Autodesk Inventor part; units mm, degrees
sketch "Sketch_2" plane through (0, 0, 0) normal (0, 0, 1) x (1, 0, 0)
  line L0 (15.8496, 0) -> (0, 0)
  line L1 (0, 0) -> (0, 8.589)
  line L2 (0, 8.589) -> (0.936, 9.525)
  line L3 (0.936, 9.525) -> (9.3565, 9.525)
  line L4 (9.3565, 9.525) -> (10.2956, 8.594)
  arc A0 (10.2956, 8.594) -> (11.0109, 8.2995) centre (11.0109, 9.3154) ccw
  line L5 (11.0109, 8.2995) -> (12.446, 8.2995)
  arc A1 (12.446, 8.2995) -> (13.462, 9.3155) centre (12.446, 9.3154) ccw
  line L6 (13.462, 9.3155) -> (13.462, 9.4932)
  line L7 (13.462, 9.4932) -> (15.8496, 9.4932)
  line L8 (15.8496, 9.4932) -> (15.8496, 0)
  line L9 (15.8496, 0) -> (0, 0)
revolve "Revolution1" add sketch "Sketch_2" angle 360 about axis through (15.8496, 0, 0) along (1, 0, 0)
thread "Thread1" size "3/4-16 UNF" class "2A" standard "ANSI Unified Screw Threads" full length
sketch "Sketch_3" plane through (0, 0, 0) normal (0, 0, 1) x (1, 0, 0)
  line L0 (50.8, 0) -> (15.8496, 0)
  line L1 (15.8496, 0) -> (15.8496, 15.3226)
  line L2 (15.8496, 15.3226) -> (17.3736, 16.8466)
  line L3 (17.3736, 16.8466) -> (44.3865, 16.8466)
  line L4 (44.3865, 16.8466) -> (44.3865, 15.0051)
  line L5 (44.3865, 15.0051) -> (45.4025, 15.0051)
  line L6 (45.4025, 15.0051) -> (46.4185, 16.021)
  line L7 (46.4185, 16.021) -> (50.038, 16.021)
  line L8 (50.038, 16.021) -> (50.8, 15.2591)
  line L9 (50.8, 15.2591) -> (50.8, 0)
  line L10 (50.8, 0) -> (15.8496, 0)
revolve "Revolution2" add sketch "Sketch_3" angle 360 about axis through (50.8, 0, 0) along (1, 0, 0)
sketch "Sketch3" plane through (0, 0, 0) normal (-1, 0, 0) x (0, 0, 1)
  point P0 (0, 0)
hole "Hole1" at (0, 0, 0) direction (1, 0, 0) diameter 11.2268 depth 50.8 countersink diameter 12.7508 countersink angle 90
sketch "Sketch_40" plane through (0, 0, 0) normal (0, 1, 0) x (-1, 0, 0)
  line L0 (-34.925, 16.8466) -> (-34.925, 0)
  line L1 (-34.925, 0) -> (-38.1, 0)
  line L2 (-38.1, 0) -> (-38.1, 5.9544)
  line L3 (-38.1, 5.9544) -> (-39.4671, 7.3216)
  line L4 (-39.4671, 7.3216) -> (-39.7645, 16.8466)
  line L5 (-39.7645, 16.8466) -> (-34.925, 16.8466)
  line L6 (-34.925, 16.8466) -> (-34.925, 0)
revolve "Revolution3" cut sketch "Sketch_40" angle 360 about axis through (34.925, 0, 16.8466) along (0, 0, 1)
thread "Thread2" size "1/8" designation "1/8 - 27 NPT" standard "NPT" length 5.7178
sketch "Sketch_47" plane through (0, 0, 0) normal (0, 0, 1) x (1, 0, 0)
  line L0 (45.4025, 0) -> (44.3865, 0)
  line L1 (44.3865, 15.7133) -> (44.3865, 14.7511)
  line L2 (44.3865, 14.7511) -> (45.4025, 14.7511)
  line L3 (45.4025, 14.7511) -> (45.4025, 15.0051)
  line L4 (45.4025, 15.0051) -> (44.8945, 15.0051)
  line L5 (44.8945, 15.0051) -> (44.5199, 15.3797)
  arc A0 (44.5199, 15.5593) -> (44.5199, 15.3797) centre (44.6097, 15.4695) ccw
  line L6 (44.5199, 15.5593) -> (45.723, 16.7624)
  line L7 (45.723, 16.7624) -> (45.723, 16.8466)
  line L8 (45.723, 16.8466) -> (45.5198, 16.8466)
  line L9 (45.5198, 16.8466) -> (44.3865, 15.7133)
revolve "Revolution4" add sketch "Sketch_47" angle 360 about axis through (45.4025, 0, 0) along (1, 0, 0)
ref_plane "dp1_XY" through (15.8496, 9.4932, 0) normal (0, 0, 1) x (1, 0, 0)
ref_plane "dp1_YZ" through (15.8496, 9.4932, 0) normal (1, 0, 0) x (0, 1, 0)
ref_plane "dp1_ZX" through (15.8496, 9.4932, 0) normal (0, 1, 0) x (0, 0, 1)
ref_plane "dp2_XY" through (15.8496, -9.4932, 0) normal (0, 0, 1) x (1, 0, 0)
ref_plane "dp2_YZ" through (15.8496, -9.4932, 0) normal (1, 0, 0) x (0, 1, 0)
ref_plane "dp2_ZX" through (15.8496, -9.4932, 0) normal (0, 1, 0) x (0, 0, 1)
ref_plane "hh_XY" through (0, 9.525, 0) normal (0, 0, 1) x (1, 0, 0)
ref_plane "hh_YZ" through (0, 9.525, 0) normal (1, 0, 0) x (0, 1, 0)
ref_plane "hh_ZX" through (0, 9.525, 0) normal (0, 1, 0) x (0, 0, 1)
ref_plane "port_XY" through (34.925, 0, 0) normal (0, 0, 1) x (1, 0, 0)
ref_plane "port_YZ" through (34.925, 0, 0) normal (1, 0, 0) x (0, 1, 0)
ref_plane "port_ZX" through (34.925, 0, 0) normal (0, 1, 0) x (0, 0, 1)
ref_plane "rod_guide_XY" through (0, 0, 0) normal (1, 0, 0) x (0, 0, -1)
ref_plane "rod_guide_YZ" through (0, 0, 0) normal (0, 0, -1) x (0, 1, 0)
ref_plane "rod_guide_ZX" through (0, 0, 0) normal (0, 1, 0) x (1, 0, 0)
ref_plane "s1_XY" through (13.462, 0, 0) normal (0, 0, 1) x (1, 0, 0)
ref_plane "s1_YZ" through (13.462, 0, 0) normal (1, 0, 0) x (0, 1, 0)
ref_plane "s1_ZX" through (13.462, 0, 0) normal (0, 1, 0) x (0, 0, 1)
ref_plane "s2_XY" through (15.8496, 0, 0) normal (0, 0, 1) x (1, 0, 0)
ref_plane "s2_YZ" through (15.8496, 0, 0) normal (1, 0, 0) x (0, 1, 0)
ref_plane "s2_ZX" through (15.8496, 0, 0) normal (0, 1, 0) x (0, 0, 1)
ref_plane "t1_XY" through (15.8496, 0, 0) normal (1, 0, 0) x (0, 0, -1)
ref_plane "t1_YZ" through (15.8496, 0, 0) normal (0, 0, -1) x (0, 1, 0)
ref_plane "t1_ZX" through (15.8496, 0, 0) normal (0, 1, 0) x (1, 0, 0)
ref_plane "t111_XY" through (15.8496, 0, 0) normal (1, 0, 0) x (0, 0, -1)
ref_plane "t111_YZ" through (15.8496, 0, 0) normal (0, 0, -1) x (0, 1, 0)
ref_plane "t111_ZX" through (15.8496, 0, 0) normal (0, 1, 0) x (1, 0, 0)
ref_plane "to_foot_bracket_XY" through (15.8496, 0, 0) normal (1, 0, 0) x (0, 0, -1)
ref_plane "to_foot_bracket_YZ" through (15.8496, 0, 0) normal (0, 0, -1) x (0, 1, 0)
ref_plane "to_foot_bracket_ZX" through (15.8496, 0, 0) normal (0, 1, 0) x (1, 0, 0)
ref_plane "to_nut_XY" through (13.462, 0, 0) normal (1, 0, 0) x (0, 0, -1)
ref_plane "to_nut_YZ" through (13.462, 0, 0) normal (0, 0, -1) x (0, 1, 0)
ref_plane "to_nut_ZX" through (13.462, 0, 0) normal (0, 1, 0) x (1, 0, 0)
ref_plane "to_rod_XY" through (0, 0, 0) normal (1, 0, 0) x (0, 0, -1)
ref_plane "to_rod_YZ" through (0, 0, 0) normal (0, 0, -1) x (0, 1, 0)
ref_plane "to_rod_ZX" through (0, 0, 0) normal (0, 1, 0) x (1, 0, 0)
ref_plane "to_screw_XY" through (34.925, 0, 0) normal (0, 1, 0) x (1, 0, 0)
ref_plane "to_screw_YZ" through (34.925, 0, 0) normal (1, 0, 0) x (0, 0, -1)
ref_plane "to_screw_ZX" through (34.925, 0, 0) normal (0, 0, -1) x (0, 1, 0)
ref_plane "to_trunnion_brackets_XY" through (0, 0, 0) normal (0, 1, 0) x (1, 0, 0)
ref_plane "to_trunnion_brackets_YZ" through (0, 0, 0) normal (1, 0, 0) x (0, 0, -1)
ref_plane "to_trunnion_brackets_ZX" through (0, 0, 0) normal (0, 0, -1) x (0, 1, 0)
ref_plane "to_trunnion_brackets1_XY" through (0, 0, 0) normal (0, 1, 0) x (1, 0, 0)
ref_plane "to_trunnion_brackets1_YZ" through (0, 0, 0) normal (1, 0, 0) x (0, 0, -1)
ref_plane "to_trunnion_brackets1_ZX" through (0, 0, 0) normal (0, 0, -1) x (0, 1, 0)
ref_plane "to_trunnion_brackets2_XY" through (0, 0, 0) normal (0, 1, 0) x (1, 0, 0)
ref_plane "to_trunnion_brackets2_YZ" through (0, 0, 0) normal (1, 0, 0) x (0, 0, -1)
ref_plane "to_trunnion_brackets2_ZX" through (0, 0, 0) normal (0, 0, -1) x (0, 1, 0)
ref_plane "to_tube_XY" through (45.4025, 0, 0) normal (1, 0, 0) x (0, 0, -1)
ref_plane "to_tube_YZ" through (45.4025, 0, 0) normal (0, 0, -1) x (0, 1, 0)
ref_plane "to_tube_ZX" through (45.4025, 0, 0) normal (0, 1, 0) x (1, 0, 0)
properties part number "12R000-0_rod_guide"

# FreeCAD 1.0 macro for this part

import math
import FreeCAD as App
import Part
import Sketcher
Q = App.Units.Quantity


def add_polygon(sketch, points):
    """Adds a closed chain of lines whose ends are joined by coincident constraints."""
    first, n = sketch.GeometryCount, len(points)
    for a, b in zip(points, points[1:] + points[:1]):
        sketch.addGeometry(Part.LineSegment(App.Vector(*a, 0), App.Vector(*b, 0)), False)
    for i in range(n):
        sketch.addConstraint(Sketcher.Constraint("Coincident", first + i, 2, first + (i + 1) % n, 1))

doc = App.newDocument("Part")
body = doc.addObject("PartDesign::Body", "Body")

sketch1 = doc.addObject("Sketcher::SketchObject", "Sketch")
body.addObject(sketch1)
sketch1.AttachmentSupport = (doc.XY_Plane, [""])
sketch1.MapMode = "FlatFace"
sketch1.addGeometry([
    Part.LineSegment(App.Vector(0, 0, 0), App.Vector(15.85, 0, 0)),
    Part.LineSegment(App.Vector(15.85, 0, 0), App.Vector(15.85, 9.49, 0)),
    Part.LineSegment(App.Vector(15.85, 9.49, 0), App.Vector(13.46, 9.49, 0)),
    Part.LineSegment(App.Vector(13.46, 9.49, 0), App.Vector(13.46, 9.32, 0)),
    Part.ArcOfCircle(Part.Circle(App.Vector(12.45, 9.32, 0), App.Vector(0, 0, 1), 1.02), math.radians(-90), math.radians(0)),
    Part.LineSegment(App.Vector(12.45, 8.3, 0), App.Vector(11.01, 8.3, 0)),
    Part.ArcOfCircle(Part.Circle(App.Vector(11.01, 9.32, 0), App.Vector(0, 0, 1), 1.02), math.radians(-135), math.radians(-90)),
    Part.LineSegment(App.Vector(10.3, 8.59, 0), App.Vector(9.36, 9.53, 0)),
    Part.LineSegment(App.Vector(9.36, 9.53, 0), App.Vector(0.94, 9.53, 0)),
    Part.LineSegment(App.Vector(0.94, 9.53, 0), App.Vector(0, 8.59, 0)),
    Part.LineSegment(App.Vector(0, 8.59, 0), App.Vector(0, 0, 0)),
], False)
sketch1.addConstraint([
    Sketcher.Constraint("Coincident", 0, 2, 1, 1),
    Sketcher.Constraint("Coincident", 1, 2, 2, 1),
    Sketcher.Constraint("Coincident", 2, 2, 3, 1),
    Sketcher.Constraint("Tangent", 3, 2, 4, 2),
    Sketcher.Constraint("Tangent", 4, 1, 5, 1),
    Sketcher.Constraint("Tangent", 5, 2, 6, 2),
    Sketcher.Constraint("Tangent", 6, 1, 7, 1),
    Sketcher.Constraint("Coincident", 7, 2, 8, 1),
    Sketcher.Constraint("Coincident", 8, 2, 9, 1),
    Sketcher.Constraint("Coincident", 9, 2, 10, 1),
    Sketcher.Constraint("Coincident", 10, 2, 0, 1),
    Sketcher.Constraint("Horizontal", 0),
    Sketcher.Constraint("Vertical", 1),
    Sketcher.Constraint("Horizontal", 2),
    Sketcher.Constraint("Vertical", 3),
    Sketcher.Constraint("Horizontal", 5),
    Sketcher.Constraint("Horizontal", 8),
    Sketcher.Constraint("Vertical", 10),
    Sketcher.Constraint("Coincident", 10, 2, -1, 1),
    Sketcher.Constraint("Equal", 4, 6),
    Sketcher.Constraint("Radius", 4, Q("0.04 in")),
    Sketcher.Constraint("Angle", 9, Q("-135 deg")),
    Sketcher.Constraint("DistanceX", 0, 1, 0, 2, Q("0.624 in")),
    Sketcher.Constraint("DistanceX", 2, 2, 2, 1, Q("0.094 in")),
    Sketcher.Constraint("DistanceY", 3, 2, 3, 1, Q("0.007 in")),
    Sketcher.Constraint("DistanceX", 5, 2, 5, 1, Q("0.0565 in")),
    Sketcher.Constraint("DistanceY", -1, 1, 7, 2, Q("0.375 in")),
    Sketcher.Constraint("DistanceX", 8, 2, 8, 1, Q("8.4205 mm")),
    Sketcher.Constraint("DistanceY", 1, 1, 1, 2, Q("9.4932 mm")),
    Sketcher.Constraint("DistanceY", 10, 2, 10, 1, Q("8.589 mm")),
])
revolution = doc.addObject("PartDesign::Revolution", "Revolution")
body.addObject(revolution)
revolution.Profile = sketch1
revolution.ReferenceAxis = (sketch1, ["H_Axis"])
revolution.Angle = 360

sketch2 = doc.addObject("Sketcher::SketchObject", "Sketch001")
body.addObject(sketch2)
sketch2.AttachmentSupport = (doc.XY_Plane, [""])
sketch2.MapMode = "FlatFace"
add_polygon(sketch2, [(15.8, 0), (50.8, 0), (50.8, 15.3), (50, 16), (46.4, 16), (45.4, 15), (44.4, 15), (44.4, 16.8), (17.4, 16.8), (15.8, 15.3)])
sketch2.addConstraint([
    Sketcher.Constraint("Horizontal", 0),
    Sketcher.Constraint("Vertical", 1),
    Sketcher.Constraint("Horizontal", 3),
    Sketcher.Constraint("Horizontal", 5),
    Sketcher.Constraint("Vertical", 6),
    Sketcher.Constraint("Horizontal", 7),
    Sketcher.Constraint("Vertical", 9),
    Sketcher.Constraint("PointOnObject", 0, 2, -1),
    Sketcher.Constraint("Perpendicular", 2, 4),
    Sketcher.Constraint("Parallel", 4, 8),
    Sketcher.Constraint("DistanceX", -1, 1, 0, 2, Q("2 in")),
    Sketcher.Constraint("Angle", 8, Q("-135 deg")),
    Sketcher.Constraint("DistanceX", 5, 2, 5, 1, Q("0.04 in")),
    Sketcher.Constraint("DistanceX", 0, 1, 0, 2, Q("1.376 in")),
    Sketcher.Constraint("DistanceX", -1, 1, 2, 2, Q("1.97 in")),
    Sketcher.Constraint("DistanceX", 4, 2, 3, 2, Q("0.04 in")),
    Sketcher.Constraint("DistanceX", 8, 2, 7, 2, Q("0.06 in")),
    Sketcher.Constraint("DistanceX", 3, 2, 3, 1, Q("0.1425 in")),
    Sketcher.Constraint("DistanceY", 6, 1, 6, 2, Q("0.0725 in")),
    Sketcher.Constraint("DistanceY", 1, 1, 1, 2, Q("15.259 mm")),
])
revolution2 = doc.addObject("PartDesign::Revolution", "Revolution001")
body.addObject(revolution2)
revolution2.Profile = sketch2
revolution2.ReferenceAxis = (sketch2, ["H_Axis"])
revolution2.Angle = 360

sketch3 = doc.addObject("Sketcher::SketchObject", "Sketch002")
body.addObject(sketch3)
sketch3.AttachmentSupport = (doc.YZ_Plane, [""])
sketch3.MapMode = "FlatFace"
sketch3.addGeometry(Part.Circle(App.Vector(0, 0, 0), App.Vector(0, 0, 1), 6), False)
sketch3.addConstraint([
    Sketcher.Constraint("Coincident", 0, 3, -1, 1),
    Sketcher.Constraint("Diameter", 0, Q("0.442 in")),
])
doc.recompute()
hole = doc.addObject("PartDesign::Hole", "Hole")
body.addObject(hole)
hole.Profile = sketch3
hole.ThreadType = "None"
hole.Diameter = Q("0.442 in")
hole.DepthType = "Dimension"
hole.Depth = Q("2 in")
hole.DrillPoint = "Flat"
hole.HoleCutType = "Countersink"
hole.HoleCutDiameter = Q("0.502 in")
hole.HoleCutCountersinkAngle = 90
hole.Reversed = True

sketch4 = doc.addObject("Sketcher::SketchObject", "Sketch003")
body.addObject(sketch4)
sketch4.AttachmentSupport = (doc.XZ_Plane, [""])
sketch4.MapMode = "FlatFace"
add_polygon(sketch4, [(34.9, 0), (34.9, 16.8), (39.8, 16.8), (39.5, 7.3), (38.1, 6), (38.1, 0)])
sketch4.addGeometry(Part.LineSegment(App.Vector(34.9, 0, 0), App.Vector(34.9, 16.8, 0)), True)
sketch4.addConstraint([
    Sketcher.Constraint("Vertical", 0),
    Sketcher.Constraint("Horizontal", 1),
    Sketcher.Constraint("Vertical", 4),
    Sketcher.Constraint("Horizontal", 5),
    Sketcher.Constraint("Vertical", 6),
    Sketcher.Constraint("Coincident", 6, 1, 5, 2),
    Sketcher.Constraint("PointOnObject", 4, 2, -1),
    Sketcher.Constraint("Horizontal", 1, 2, 6, 2),
    Sketcher.Constraint("DistanceX", -1, 1, 3, 2, Q("1.5 in")),
    Sketcher.Constraint("DistanceX", 5, 2, 5, 1, Q("0.125 in")),
    Sketcher.Constraint("DistanceY", 2, 2, 1, 2, Q("0.375 in")),
    Sketcher.Constraint("DistanceX", 1, 1, 1, 2, Q("4.8395 mm")),
    Sketcher.Constraint("DistanceY", 0, 1, 0, 2, Q("16.8466 mm")),
    Sketcher.Constraint("DistanceY", 4, 2, 4, 1, Q("5.9544 mm")),
    Sketcher.Constraint("DistanceX", 2, 2, 1, 2, Q("0.0117 in")),
])
groove = doc.addObject("PartDesign::Groove", "Groove")
body.addObject(groove)
groove.Profile = sketch4
groove.ReferenceAxis = (sketch4, ["Axis0"])
groove.Angle = 360

sketch5 = doc.addObject("Sketcher::SketchObject", "Sketch004")
body.addObject(sketch5)
sketch5.AttachmentSupport = (doc.XY_Plane, [""])
sketch5.MapMode = "FlatFace"
sketch5.addGeometry([
    Part.LineSegment(App.Vector(45.52, 16.85, 0), App.Vector(44.39, 15.71, 0)),
    Part.LineSegment(App.Vector(44.39, 15.71, 0), App.Vector(44.39, 14.75, 0)),
    Part.LineSegment(App.Vector(44.39, 14.75, 0), App.Vector(45.4, 14.75, 0)),
    Part.LineSegment(App.Vector(45.4, 14.75, 0), App.Vector(45.4, 15.01, 0)),
    Part.LineSegment(App.Vector(45.4, 15.01, 0), App.Vector(44.89, 15.01, 0)),
    Part.LineSegment(App.Vector(44.89, 15.01, 0), App.Vector(44.52, 15.38, 0)),
    Part.ArcOfCircle(Part.Circle(App.Vector(44.61, 15.47, 0), App.Vector(0, 0, 1), 0.13), math.radians(135), math.radians(225)),
    Part.LineSegment(App.Vector(44.52, 15.56, 0), App.Vector(45.72, 16.76, 0)),
    Part.LineSegment(App.Vector(45.72, 16.76, 0), App.Vector(45.72, 16.85, 0)),
    Part.LineSegment(App.Vector(45.72, 16.85, 0), App.Vector(45.52, 16.85, 0)),
], False)
sketch5.addConstraint([
    Sketcher.Constraint("Coincident", 0, 2, 1, 1),
    Sketcher.Constraint("Coincident", 1, 2, 2, 1),
    Sketcher.Constraint("Coincident", 2, 2, 3, 1),
    Sketcher.Constraint("Coincident", 3, 2, 4, 1),
    Sketcher.Constraint("Coincident", 4, 2, 5, 1),
    Sketcher.Constraint("Tangent", 5, 2, 6, 2),
    Sketcher.Constraint("Tangent", 6, 1, 7, 1),
    Sketcher.Constraint("Coincident", 7, 2, 8, 1),
    Sketcher.Constraint("Coincident", 8, 2, 9, 1),
    Sketcher.Constraint("Coincident", 9, 2, 0, 1),
    Sketcher.Constraint("Vertical", 1),
    Sketcher.Constraint("Horizontal", 2),
    Sketcher.Constraint("Vertical", 3),
    Sketcher.Constraint("Horizontal", 4),
    Sketcher.Constraint("Vertical", 8),
    Sketcher.Constraint("Horizontal", 9),
    Sketcher.Constraint("Perpendicular", 0, 5),
    Sketcher.Constraint("Perpendicular", 5, 7),
    Sketcher.Constraint("Vertical", 5, 2, 6, 1),
    Sketcher.Constraint("Radius", 6, Q("0.005 in")),
    Sketcher.Constraint("DistanceX", 2, 1, 2, 2, Q("0.04 in")),
    Sketcher.Constraint("DistanceX", 4, 2, 4, 1, Q("0.02 in")),
    Sketcher.Constraint("DistanceY", 3, 1, 3, 2, Q("0.01 in")),
    Sketcher.Constraint("DistanceX", 9, 2, 9, 1, Q("0.008 in")),
    Sketcher.Constraint("Distance", 0, Q("0.0631 in")),
    Sketcher.Constraint("DistanceY", 1, 2, 1, 1, Q("0.9622 mm")),
    Sketcher.Constraint("DistanceY", 8, 1, 8, 2, Q("0.0842 mm")),
    Sketcher.Constraint("DistanceX", -1, 1, 0, 2, Q("1.7475 in")),
    Sketcher.Constraint("DistanceY", -1, 1, 5, 2, Q("0.6055 in")),
])
revolution3 = doc.addObject("PartDesign::Revolution", "Revolution002")
body.addObject(revolution3)
revolution3.Profile = sketch5
revolution3.ReferenceAxis = (sketch5, ["H_Axis"])
revolution3.Angle = 360

doc.recompute()
